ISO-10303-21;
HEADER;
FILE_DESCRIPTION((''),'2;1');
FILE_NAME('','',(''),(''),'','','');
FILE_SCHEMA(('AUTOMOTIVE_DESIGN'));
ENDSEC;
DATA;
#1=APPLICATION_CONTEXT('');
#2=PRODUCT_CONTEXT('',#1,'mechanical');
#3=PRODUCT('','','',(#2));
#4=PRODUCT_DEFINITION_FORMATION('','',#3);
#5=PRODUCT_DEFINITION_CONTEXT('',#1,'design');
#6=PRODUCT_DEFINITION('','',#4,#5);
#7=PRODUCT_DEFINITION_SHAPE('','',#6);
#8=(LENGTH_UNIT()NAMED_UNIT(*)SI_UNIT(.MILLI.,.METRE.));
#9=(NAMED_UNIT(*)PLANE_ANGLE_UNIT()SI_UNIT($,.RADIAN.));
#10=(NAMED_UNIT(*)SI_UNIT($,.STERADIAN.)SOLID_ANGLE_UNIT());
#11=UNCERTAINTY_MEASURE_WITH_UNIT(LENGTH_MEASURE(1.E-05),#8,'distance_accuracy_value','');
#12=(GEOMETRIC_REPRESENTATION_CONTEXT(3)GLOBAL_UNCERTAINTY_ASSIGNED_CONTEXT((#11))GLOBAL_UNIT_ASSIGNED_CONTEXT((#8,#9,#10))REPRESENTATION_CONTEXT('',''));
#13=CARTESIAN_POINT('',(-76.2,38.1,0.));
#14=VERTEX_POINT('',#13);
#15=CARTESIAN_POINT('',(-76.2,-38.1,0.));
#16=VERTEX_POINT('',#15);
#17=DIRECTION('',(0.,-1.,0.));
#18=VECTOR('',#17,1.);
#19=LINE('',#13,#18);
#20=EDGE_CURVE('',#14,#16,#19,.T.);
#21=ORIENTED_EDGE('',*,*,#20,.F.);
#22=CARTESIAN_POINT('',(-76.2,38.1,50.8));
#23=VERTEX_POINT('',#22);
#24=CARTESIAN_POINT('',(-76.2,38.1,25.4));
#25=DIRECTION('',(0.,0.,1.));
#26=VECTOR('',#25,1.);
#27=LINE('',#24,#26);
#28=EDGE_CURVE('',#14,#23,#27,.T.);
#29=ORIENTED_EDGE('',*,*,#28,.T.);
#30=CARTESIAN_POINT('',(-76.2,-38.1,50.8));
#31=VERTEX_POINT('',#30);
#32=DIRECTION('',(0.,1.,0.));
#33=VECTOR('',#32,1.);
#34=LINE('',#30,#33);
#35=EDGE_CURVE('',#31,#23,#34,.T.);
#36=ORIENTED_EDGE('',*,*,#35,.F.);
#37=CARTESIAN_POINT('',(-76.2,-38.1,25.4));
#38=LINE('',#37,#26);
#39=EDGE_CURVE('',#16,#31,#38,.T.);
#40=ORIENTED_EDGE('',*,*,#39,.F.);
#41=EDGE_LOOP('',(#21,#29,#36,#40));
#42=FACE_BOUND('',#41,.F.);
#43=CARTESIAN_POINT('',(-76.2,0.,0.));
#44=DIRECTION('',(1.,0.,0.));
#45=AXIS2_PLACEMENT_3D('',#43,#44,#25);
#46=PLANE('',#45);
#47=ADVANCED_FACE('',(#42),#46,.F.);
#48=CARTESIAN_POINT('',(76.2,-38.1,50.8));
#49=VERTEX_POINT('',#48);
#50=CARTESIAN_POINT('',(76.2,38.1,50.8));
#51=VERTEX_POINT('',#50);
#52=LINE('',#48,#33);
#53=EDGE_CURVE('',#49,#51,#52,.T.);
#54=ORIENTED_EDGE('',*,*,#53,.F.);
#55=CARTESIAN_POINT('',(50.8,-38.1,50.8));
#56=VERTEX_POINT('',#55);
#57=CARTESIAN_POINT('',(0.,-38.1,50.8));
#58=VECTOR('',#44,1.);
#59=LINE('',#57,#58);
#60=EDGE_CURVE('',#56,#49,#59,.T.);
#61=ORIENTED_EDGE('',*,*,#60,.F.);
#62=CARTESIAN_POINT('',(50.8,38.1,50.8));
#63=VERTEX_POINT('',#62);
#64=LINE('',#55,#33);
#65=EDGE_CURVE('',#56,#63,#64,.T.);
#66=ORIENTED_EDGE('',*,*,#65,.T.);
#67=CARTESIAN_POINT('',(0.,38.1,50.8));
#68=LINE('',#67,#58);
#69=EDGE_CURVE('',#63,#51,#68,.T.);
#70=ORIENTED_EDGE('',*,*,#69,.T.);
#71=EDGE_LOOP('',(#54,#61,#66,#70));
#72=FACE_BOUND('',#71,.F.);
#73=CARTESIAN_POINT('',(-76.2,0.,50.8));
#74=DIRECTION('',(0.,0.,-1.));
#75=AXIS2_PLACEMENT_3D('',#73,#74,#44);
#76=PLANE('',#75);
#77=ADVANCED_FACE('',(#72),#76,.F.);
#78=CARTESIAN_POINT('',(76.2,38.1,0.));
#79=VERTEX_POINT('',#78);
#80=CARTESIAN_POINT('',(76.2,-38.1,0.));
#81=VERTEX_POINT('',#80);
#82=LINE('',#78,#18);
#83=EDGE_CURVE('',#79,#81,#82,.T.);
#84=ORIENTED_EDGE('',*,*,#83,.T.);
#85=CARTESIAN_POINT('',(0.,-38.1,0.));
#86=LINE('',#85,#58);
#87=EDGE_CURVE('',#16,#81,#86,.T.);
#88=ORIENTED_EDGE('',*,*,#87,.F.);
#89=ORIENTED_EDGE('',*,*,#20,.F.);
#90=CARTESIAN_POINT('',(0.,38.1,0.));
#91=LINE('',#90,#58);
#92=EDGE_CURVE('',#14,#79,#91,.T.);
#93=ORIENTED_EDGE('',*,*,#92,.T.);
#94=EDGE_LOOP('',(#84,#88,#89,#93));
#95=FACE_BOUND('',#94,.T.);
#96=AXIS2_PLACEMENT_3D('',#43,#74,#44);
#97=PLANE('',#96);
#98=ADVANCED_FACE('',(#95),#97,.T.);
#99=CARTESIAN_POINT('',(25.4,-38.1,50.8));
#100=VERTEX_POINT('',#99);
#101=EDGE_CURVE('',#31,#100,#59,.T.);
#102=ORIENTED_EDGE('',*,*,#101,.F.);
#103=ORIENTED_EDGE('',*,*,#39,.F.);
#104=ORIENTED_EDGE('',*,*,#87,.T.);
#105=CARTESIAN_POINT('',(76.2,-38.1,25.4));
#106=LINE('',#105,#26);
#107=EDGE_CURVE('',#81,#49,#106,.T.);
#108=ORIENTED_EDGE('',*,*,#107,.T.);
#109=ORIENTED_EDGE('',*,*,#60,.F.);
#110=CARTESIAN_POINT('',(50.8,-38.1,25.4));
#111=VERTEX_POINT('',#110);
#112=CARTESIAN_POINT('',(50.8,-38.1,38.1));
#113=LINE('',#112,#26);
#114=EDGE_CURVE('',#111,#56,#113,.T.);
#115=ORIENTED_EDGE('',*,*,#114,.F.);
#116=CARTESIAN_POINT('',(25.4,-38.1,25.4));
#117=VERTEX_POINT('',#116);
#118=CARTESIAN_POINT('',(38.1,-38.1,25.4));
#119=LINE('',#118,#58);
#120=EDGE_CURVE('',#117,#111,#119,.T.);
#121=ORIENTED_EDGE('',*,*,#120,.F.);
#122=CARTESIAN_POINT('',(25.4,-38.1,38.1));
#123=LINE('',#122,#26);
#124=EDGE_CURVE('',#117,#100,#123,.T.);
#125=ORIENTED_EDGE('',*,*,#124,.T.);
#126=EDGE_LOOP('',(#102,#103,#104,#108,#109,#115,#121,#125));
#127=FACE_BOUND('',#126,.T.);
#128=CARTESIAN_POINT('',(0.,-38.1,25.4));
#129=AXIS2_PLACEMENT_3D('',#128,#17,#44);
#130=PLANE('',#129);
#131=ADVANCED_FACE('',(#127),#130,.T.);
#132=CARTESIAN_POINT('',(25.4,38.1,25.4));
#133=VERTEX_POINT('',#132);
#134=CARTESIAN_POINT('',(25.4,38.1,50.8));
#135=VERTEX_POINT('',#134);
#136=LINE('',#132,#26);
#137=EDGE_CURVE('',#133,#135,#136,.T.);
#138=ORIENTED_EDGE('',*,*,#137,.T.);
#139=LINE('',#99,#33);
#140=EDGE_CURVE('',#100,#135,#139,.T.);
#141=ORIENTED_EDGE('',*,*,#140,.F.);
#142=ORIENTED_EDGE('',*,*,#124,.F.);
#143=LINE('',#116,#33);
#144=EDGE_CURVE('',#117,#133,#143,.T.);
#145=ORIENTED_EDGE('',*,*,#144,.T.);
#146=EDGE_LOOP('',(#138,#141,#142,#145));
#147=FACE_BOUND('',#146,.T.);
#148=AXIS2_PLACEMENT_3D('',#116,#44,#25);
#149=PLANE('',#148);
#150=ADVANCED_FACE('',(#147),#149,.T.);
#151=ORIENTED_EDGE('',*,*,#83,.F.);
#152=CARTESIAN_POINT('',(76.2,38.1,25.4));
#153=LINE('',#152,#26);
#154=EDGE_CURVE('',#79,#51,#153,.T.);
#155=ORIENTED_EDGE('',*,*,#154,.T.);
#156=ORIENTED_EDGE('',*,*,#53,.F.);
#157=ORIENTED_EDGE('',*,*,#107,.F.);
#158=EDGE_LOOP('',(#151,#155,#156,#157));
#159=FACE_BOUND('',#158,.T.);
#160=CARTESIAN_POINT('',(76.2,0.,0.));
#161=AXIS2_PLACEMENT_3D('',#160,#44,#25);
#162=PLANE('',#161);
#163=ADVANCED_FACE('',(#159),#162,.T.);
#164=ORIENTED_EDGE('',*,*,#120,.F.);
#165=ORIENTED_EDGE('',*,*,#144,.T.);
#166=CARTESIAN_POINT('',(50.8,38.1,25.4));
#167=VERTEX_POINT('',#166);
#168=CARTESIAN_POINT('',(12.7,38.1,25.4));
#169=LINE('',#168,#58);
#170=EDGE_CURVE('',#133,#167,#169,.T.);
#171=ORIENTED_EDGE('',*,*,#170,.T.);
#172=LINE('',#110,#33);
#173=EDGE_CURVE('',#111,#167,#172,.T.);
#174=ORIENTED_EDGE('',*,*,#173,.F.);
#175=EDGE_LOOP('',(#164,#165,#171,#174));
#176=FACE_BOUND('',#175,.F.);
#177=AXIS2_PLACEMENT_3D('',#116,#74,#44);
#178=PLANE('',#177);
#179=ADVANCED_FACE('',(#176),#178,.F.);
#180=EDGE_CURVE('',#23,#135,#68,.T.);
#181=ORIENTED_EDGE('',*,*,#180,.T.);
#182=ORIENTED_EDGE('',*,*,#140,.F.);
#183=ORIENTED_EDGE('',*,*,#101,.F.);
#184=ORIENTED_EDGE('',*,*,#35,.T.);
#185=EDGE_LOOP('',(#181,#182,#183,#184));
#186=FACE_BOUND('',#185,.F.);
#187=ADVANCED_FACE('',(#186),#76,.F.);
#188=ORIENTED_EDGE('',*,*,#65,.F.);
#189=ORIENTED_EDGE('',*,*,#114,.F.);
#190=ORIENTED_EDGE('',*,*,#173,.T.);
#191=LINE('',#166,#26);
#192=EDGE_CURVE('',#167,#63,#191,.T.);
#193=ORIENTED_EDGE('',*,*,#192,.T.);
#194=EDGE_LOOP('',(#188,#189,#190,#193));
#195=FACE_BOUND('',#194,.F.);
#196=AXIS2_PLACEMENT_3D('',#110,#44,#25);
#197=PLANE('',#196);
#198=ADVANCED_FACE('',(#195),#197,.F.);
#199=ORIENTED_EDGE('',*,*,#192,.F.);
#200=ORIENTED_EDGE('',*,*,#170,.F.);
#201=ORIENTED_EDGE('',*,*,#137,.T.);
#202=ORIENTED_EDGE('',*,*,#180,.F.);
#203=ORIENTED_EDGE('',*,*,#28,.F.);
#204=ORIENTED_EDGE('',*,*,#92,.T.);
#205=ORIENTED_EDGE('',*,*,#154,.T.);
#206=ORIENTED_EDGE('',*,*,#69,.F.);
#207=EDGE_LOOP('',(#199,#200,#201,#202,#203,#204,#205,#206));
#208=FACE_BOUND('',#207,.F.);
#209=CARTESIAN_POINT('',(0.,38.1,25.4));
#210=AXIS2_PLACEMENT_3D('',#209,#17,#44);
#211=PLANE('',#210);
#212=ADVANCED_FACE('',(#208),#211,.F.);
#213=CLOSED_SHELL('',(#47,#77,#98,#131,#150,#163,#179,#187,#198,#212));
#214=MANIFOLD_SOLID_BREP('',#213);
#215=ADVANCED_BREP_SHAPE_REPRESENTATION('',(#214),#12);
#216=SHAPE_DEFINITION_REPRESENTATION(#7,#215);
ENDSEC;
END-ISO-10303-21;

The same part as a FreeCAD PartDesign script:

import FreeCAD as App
import Part
import Sketcher
Q = App.Units.Quantity


def add_polygon(sketch, points):
    """Adds a closed chain of lines whose ends are joined by coincident constraints."""
    first, n = sketch.GeometryCount, len(points)
    for a, b in zip(points, points[1:] + points[:1]):
        sketch.addGeometry(Part.LineSegment(App.Vector(*a, 0), App.Vector(*b, 0)), False)
    for i in range(n):
        sketch.addConstraint(Sketcher.Constraint("Coincident", first + i, 2, first + (i + 1) % n, 1))

doc = App.newDocument("Part")
params = doc.addObject("Spreadsheet::Sheet", "Params")
for row, (alias, value) in enumerate([
    ("sketch1_width", "6 in"),
    ("sketch1_height", "2 in"),
    ("pad1_length", "3 in"),
    ("sketch2_width", "1 in"),
], start=1):
    params.set(f"A{row}", alias)
    params.set(f"B{row}", "=" + value)
    params.setAlias(f"B{row}", alias)

body = doc.addObject("PartDesign::Body", "Body")

# Sketch on XZ plane
sketch1 = body.newObject("Sketcher::SketchObject", "Sketch")
sketch1.AttachmentSupport = (doc.getObject("XZ_Plane"), [""])
sketch1.MapMode = "FlatFace"
add_polygon(sketch1, [(-76, 51), (-76, 0), (76, 0), (76, 51)])  # lines 0-3
sketch1.addConstraint([
    Sketcher.Constraint("Vertical", 0),
    Sketcher.Constraint("Horizontal", 1),
    Sketcher.Constraint("Vertical", 2),
    Sketcher.Constraint("Horizontal", 3),
    Sketcher.Constraint("Symmetric", 0, 2, 1, 2, -1, 1),
    Sketcher.Constraint("DistanceX", 1, 1, 1, 2, Q("6 in")),
    Sketcher.Constraint("DistanceY", 0, 2, 0, 1, Q("2 in")),
])
sketch1.setExpression("Constraints[9]", "Params.sketch1_width")
sketch1.setExpression("Constraints[10]", "Params.sketch1_height")
pad1 = body.newObject("PartDesign::Pad", "Pad")
pad1.Profile = sketch1
pad1.setExpression("Length", "Params.pad1_length")
pad1.Midplane = True

# Sketch on XZ plane
sketch2 = body.newObject("Sketcher::SketchObject", "Sketch001")
sketch2.AttachmentSupport = (doc.getObject("XZ_Plane"), [""])
sketch2.MapMode = "FlatFace"
sketch2.AttachmentOffset = App.Placement(App.Vector(0, 0, 1.5 * 25.4), App.Rotation())
add_polygon(sketch2, [(25, 51), (25, 25), (51, 25), (51, 51)])  # lines 0-3
sketch2.addConstraint([
    Sketcher.Constraint("Vertical", 0),
    Sketcher.Constraint("Horizontal", 1),
    Sketcher.Constraint("Vertical", 2),
    Sketcher.Constraint("Horizontal", 3),
    Sketcher.Constraint("Equal", 3, 0),
    Sketcher.Constraint("DistanceX", 1, 1, 1, 2, Q("1 in")),
    Sketcher.Constraint("DistanceX", -1, 1, 0, 2, Q("1 in")),
    Sketcher.Constraint("DistanceY", -1, 1, 0, 2, Q("1 in")),
])
sketch2.setExpression("Constraints[9]", "Params.sketch2_width")
pocket1 = body.newObject("PartDesign::Pocket", "Pocket")
pocket1.Profile = sketch2
pocket1.Type = "ThroughAll"

doc.recompute()
